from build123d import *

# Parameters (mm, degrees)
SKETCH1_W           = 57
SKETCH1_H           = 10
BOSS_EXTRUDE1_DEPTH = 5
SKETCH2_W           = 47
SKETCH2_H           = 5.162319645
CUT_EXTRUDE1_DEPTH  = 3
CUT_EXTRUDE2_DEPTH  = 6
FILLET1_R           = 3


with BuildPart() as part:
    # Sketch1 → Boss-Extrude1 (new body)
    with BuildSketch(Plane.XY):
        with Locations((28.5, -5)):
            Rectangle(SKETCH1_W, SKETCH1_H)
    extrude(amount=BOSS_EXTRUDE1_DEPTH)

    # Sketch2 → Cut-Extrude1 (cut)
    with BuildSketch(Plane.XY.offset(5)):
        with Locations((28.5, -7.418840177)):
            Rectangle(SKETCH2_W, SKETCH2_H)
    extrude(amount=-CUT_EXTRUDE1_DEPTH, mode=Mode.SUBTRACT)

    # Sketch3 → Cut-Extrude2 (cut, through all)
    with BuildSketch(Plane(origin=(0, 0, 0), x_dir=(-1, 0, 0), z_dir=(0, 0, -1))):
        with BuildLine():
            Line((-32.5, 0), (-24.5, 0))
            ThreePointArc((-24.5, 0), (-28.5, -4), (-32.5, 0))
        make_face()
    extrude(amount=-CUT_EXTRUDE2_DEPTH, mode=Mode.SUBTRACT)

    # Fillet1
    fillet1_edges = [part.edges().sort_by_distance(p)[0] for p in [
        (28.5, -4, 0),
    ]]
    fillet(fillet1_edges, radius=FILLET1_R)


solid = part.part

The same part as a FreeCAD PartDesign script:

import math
import FreeCAD as App
import Part
import Sketcher

V = App.Vector


def edges_at(feature, points):
    """Names of the edges that pass closest to the given points."""
    edges = feature.Shape.Edges
    near = lambda p: min(range(len(edges)), key=lambda i: edges[i].distToShape(Part.Vertex(*p))[0])
    return sorted({f"Edge{near(p) + 1}" for p in points})

doc = App.newDocument("Part")
body = doc.addObject("PartDesign::Body", "Body")

sketch1 = doc.addObject("Sketcher::SketchObject", "Sketch")
body.addObject(sketch1)
sketch1.AttachmentSupport = (doc.XY_Plane, [""])
sketch1.MapMode = "FlatFace"
sketch1.addGeometry(Part.LineSegment(V(0, 0, 0), V(0, -10, 0)), False)
sketch1.addGeometry(Part.LineSegment(V(0, -10, 0), V(57, -10, 0)), False)
sketch1.addGeometry(Part.LineSegment(V(57, -10, 0), V(57, 0, 0)), False)
sketch1.addGeometry(Part.LineSegment(V(57, 0, 0), V(0, 0, 0)), False)
sketch1.addConstraint(Sketcher.Constraint("Coincident", 0, 2, 1, 1))
sketch1.addConstraint(Sketcher.Constraint("Coincident", 1, 2, 2, 1))
sketch1.addConstraint(Sketcher.Constraint("Coincident", 2, 2, 3, 1))
sketch1.addConstraint(Sketcher.Constraint("Coincident", 3, 2, 0, 1))
sketch1.addConstraint(Sketcher.Constraint("Vertical", 0))
sketch1.addConstraint(Sketcher.Constraint("Horizontal", 1))
sketch1.addConstraint(Sketcher.Constraint("Vertical", 2))
sketch1.addConstraint(Sketcher.Constraint("Horizontal", 3))
sketch1.addConstraint(Sketcher.Constraint("Coincident", 3, 2, -1, 1))
sketch1.addConstraint(Sketcher.Constraint("DistanceX", 1, 1, 1, 2, 57.0))
sketch1.addConstraint(Sketcher.Constraint("DistanceY", 0, 2, 0, 1, 10.0))
pad1 = doc.addObject("PartDesign::Pad", "Pad")
body.addObject(pad1)
pad1.Profile = sketch1
pad1.Length = 5

sketch2 = doc.addObject("Sketcher::SketchObject", "Sketch001")
body.addObject(sketch2)
sketch2.AttachmentSupport = (doc.XY_Plane, [""])
sketch2.MapMode = "FlatFace"
sketch2.AttachmentOffset = App.Placement(V(0, 0, 5), App.Rotation())
sketch2.addGeometry(Part.LineSegment(V(5, -4.83768, 0), V(5, -10, 0)), False)
sketch2.addGeometry(Part.LineSegment(V(5, -10, 0), V(52, -10, 0)), False)
sketch2.addGeometry(Part.LineSegment(V(52, -10, 0), V(52, -4.83768, 0)), False)
sketch2.addGeometry(Part.LineSegment(V(52, -4.83768, 0), V(5, -4.83768, 0)), False)
sketch2.addConstraint(Sketcher.Constraint("Coincident", 0, 2, 1, 1))
sketch2.addConstraint(Sketcher.Constraint("Coincident", 1, 2, 2, 1))
sketch2.addConstraint(Sketcher.Constraint("Coincident", 2, 2, 3, 1))
sketch2.addConstraint(Sketcher.Constraint("Coincident", 3, 2, 0, 1))
sketch2.addConstraint(Sketcher.Constraint("Vertical", 0))
sketch2.addConstraint(Sketcher.Constraint("Horizontal", 1))
sketch2.addConstraint(Sketcher.Constraint("Vertical", 2))
sketch2.addConstraint(Sketcher.Constraint("Horizontal", 3))
sketch2.addConstraint(Sketcher.Constraint("DistanceX", 1, 1, 1, 2, 47.0))
sketch2.addConstraint(Sketcher.Constraint("DistanceX", -1, 1, 0, 2, 5.0))
sketch2.addConstraint(Sketcher.Constraint("DistanceY", 0, 2, -1, 1, 10.0))
sketch2.addConstraint(Sketcher.Constraint("DistanceY", 0, 2, 0, 1, 5.16232))
pocket1 = doc.addObject("PartDesign::Pocket", "Pocket")
body.addObject(pocket1)
pocket1.Profile = sketch2
pocket1.Length = 3

sketch3 = doc.addObject("Sketcher::SketchObject", "Sketch002")
body.addObject(sketch3)
sketch3.AttachmentSupport = (doc.XY_Plane, [""])
sketch3.MapMode = "FlatFace"
sketch3.addGeometry(Part.LineSegment(V(24.5, 0, 0), V(32.5, 0, 0)), False)
sketch3.addGeometry(Part.ArcOfCircle(Part.Circle(V(28.5, 0, 0), V(0, 0, 1), 4), math.radians(180), math.radians(360)), False)
sketch3.addConstraint(Sketcher.Constraint("Coincident", 0, 1, 1, 1))
sketch3.addConstraint(Sketcher.Constraint("Coincident", 1, 2, 0, 2))
sketch3.addConstraint(Sketcher.Constraint("Horizontal", 0))
sketch3.addConstraint(Sketcher.Constraint("PointOnObject", 1, 3, -1))
sketch3.addConstraint(Sketcher.Constraint("PointOnObject", 0, 1, -1))
sketch3.addConstraint(Sketcher.Constraint("Radius", 1, 4.0))
sketch3.addConstraint(Sketcher.Constraint("DistanceX", -1, 1, 1, 3, 28.5))
pocket2 = doc.addObject("PartDesign::Pocket", "Pocket001")
body.addObject(pocket2)
pocket2.Profile = sketch3
pocket2.Type = "ThroughAll"
pocket2.Reversed = True
doc.recompute()

fillet = doc.addObject("PartDesign::Fillet", "Fillet")
body.addObject(fillet)
fillet.Base = (pocket2, edges_at(pocket2, [(28.5, -4, 0)]))
fillet.Radius = 3

doc.recompute()
